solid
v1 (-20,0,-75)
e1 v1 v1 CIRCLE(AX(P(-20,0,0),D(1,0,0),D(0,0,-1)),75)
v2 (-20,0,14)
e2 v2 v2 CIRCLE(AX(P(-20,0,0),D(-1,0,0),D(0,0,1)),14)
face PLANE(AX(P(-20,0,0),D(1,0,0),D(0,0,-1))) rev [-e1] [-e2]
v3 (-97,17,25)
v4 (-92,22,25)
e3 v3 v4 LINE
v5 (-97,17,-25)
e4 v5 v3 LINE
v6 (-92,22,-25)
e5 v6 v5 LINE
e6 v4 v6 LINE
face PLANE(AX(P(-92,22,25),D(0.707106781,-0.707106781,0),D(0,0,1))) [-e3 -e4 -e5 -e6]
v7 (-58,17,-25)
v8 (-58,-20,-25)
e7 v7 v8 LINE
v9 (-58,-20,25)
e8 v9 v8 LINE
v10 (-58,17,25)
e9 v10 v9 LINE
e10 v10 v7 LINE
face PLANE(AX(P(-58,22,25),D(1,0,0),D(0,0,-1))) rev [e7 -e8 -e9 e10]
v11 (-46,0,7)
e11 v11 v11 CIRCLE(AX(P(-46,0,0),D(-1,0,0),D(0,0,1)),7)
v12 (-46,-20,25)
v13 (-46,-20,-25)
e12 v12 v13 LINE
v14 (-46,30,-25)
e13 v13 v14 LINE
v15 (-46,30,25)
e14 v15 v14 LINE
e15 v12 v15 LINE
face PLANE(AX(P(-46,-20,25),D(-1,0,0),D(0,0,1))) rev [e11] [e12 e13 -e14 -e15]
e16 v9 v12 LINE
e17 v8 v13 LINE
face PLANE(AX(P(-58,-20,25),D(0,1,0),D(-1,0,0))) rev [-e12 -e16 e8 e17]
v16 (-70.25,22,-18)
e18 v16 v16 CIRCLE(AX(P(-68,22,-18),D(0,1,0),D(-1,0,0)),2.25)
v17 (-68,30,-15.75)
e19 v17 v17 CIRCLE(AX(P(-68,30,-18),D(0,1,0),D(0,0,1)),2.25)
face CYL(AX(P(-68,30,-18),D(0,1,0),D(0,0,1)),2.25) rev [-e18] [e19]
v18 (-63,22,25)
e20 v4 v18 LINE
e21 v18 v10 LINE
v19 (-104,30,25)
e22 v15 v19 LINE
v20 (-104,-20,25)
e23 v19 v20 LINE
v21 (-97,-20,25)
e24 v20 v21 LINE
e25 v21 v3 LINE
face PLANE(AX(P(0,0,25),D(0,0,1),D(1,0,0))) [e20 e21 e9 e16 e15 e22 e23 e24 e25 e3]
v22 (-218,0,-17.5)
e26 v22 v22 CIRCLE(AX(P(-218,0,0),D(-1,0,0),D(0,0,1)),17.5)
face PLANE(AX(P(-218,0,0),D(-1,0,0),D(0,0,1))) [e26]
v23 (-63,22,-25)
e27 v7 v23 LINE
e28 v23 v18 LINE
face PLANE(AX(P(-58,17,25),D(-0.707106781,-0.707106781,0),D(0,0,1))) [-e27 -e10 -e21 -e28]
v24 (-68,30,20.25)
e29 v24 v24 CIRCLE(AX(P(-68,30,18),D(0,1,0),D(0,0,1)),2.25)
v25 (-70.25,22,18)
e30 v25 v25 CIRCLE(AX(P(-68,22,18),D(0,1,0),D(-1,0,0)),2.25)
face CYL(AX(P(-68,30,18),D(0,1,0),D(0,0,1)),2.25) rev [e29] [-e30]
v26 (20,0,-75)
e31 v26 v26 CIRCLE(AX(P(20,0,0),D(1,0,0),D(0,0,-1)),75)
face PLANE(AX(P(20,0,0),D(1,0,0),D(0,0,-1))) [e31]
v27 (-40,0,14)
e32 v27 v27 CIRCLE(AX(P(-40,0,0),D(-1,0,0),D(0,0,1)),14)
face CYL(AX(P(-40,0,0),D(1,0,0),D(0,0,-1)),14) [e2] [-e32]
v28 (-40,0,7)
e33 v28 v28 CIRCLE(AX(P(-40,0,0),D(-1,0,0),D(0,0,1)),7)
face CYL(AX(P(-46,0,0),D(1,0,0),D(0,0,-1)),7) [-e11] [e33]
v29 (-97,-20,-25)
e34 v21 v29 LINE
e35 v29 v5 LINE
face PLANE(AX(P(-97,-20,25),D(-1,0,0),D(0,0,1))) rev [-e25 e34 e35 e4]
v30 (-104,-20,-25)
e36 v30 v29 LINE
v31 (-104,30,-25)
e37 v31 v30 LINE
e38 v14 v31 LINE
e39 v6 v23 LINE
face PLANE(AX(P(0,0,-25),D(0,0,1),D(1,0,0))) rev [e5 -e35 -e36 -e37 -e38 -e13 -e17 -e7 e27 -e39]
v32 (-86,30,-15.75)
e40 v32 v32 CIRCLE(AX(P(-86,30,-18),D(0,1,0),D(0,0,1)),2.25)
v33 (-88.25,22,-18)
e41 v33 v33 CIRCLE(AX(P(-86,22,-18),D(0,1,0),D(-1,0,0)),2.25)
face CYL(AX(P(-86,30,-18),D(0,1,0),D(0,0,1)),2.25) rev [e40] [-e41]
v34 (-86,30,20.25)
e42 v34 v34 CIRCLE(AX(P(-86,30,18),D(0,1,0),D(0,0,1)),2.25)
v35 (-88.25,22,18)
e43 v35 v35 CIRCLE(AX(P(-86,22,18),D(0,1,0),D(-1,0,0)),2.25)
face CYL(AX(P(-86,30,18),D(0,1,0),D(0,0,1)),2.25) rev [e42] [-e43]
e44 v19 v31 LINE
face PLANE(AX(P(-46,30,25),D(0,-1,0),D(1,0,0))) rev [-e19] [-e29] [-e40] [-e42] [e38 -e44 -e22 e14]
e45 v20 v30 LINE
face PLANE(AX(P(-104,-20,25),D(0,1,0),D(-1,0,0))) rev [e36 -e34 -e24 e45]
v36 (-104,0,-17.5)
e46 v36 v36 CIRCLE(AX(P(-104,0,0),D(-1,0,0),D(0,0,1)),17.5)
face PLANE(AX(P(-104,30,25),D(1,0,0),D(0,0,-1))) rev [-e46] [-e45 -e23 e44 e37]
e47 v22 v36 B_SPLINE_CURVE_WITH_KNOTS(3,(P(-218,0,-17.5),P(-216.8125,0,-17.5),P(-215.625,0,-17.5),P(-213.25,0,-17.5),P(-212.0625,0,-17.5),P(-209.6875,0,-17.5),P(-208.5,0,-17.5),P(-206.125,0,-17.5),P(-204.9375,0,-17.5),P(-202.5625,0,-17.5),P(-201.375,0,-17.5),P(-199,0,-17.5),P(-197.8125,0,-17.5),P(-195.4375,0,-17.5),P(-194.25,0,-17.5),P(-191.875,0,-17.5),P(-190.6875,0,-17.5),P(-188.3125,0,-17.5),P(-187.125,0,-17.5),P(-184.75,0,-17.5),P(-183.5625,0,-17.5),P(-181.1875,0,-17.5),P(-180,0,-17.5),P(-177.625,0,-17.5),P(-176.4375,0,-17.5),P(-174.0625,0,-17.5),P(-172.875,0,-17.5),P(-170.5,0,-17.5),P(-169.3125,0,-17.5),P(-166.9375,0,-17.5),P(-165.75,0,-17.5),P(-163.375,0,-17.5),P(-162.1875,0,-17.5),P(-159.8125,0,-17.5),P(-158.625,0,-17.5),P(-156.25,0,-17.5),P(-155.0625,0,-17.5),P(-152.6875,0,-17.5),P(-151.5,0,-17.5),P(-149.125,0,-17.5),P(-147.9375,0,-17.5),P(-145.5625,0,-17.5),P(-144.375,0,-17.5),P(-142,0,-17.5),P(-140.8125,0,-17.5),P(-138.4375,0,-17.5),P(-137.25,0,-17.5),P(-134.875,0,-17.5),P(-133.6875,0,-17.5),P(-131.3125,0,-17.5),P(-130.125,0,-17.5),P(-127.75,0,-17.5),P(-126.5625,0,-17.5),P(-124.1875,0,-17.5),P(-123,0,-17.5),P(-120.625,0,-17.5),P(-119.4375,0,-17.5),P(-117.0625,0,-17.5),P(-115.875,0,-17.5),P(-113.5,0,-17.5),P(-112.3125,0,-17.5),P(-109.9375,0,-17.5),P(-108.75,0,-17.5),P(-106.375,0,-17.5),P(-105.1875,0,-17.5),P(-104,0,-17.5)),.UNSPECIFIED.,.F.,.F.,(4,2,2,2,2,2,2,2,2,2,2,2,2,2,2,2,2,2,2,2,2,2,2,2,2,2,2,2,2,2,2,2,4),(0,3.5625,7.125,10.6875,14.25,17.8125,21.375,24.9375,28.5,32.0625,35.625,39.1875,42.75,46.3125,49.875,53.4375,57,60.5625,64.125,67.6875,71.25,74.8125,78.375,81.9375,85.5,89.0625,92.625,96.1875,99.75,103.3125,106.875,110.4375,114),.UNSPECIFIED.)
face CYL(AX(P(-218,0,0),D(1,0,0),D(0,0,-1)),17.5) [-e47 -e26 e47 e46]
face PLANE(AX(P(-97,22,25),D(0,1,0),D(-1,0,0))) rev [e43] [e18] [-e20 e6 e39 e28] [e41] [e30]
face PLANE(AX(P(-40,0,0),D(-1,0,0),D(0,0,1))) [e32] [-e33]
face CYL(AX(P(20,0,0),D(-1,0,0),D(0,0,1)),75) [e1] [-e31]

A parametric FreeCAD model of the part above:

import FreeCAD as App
import Part
import Sketcher

V = App.Vector


def edges_at(feature, points):
    """Names of the edges that pass closest to the given points."""
    edges = feature.Shape.Edges
    near = lambda p: min(range(len(edges)), key=lambda i: edges[i].distToShape(Part.Vertex(*p))[0])
    return sorted({f"Edge{near(p) + 1}" for p in points})

doc = App.newDocument("Part")
params = doc.addObject("Spreadsheet::Sheet", "Params")
for row, (alias, value) in enumerate([
    ("sketch1_diameter", "150 mm"),
    ("pad1_length", "40 mm"),
    ("sketch2_diameter", "28 mm"),
    ("pad2_length", "20 mm"),
    ("sketch3_diameter", "14 mm"),
    ("pad3_length", "6 mm"),
    ("sketch4_width", "58 mm"),
    ("sketch4_width2", "7 mm"),
    ("sketch4_width3", "39 mm"),
    ("sketch4_height", "50 mm"),
    ("sketch4_height2", "42 mm"),
    ("pad4_length", "50 mm"),
    ("chamfer_size", "5 mm"),
    ("sketch5_diameter", "35 mm"),
    ("pad5_length", "114 mm"),
    ("sketch6_diameter", "4.5 mm"),
    ("hole_diameter", "4.5 mm"),
], start=1):
    params.set(f"A{row}", alias)
    params.set(f"B{row}", "=" + value)
    params.setAlias(f"B{row}", alias)

body = doc.addObject("PartDesign::Body", "Body")

sketch1 = doc.addObject("Sketcher::SketchObject", "Sketch")
body.addObject(sketch1)
sketch1.AttachmentSupport = (doc.YZ_Plane, [""])
sketch1.MapMode = "FlatFace"
sketch1.addGeometry(Part.Circle(V(0, 0, 0), V(0, 0, 1), 75), False)
sketch1.addConstraint([
    Sketcher.Constraint("Coincident", 0, 3, -1, 1),
    Sketcher.Constraint("Diameter", 0, 150.0),
])
sketch1.setExpression("Constraints[1]", "Params.sketch1_diameter")
pad1 = doc.addObject("PartDesign::Pad", "Pad")
body.addObject(pad1)
pad1.Profile = sketch1
pad1.setExpression("Length", "Params.pad1_length")
pad1.Midplane = True

sketch2 = doc.addObject("Sketcher::SketchObject", "Sketch001")
body.addObject(sketch2)
sketch2.AttachmentSupport = (doc.YZ_Plane, [""])
sketch2.MapMode = "FlatFace"
sketch2.AttachmentOffset = App.Placement(V(0, 0, -20), App.Rotation())
sketch2.addGeometry(Part.Circle(V(0, 0, 0), V(0, 0, 1), 14), False)
sketch2.addConstraint([
    Sketcher.Constraint("Coincident", 0, 3, -1, 1),
    Sketcher.Constraint("Diameter", 0, 28.0),
])
sketch2.setExpression("Constraints[1]", "Params.sketch2_diameter")
pad2 = doc.addObject("PartDesign::Pad", "Pad001")
body.addObject(pad2)
pad2.Profile = sketch2
pad2.setExpression("Length", "Params.pad2_length")
pad2.Reversed = True

sketch3 = doc.addObject("Sketcher::SketchObject", "Sketch002")
body.addObject(sketch3)
sketch3.AttachmentSupport = (doc.YZ_Plane, [""])
sketch3.MapMode = "FlatFace"
sketch3.AttachmentOffset = App.Placement(V(0, 0, -40), App.Rotation())
sketch3.addGeometry(Part.Circle(V(0, 0, 0), V(0, 0, 1), 7), False)
sketch3.addConstraint([
    Sketcher.Constraint("Coincident", 0, 3, -1, 1),
    Sketcher.Constraint("Diameter", 0, 14.0),
])
sketch3.setExpression("Constraints[1]", "Params.sketch3_diameter")
pad3 = doc.addObject("PartDesign::Pad", "Pad002")
body.addObject(pad3)
pad3.Profile = sketch3
pad3.setExpression("Length", "Params.pad3_length")
pad3.Reversed = True

sketch4 = doc.addObject("Sketcher::SketchObject", "Sketch003")
body.addObject(sketch4)
sketch4.AttachmentSupport = (doc.XY_Plane, [""])
sketch4.MapMode = "FlatFace"
sketch4.addGeometry([
    Part.LineSegment(V(-46, -20, 0), V(-46, 30, 0)),
    Part.LineSegment(V(-46, 30, 0), V(-104, 30, 0)),
    Part.LineSegment(V(-104, 30, 0), V(-104, -20, 0)),
    Part.LineSegment(V(-104, -20, 0), V(-97, -20, 0)),
    Part.LineSegment(V(-97, -20, 0), V(-97, 22, 0)),
    Part.LineSegment(V(-97, 22, 0), V(-58, 22, 0)),
    Part.LineSegment(V(-58, 22, 0), V(-58, -20, 0)),
    Part.LineSegment(V(-58, -20, 0), V(-46, -20, 0)),
], False)
sketch4.addConstraint([
    Sketcher.Constraint("Coincident", 0, 2, 1, 1),
    Sketcher.Constraint("Coincident", 1, 2, 2, 1),
    Sketcher.Constraint("Coincident", 2, 2, 3, 1),
    Sketcher.Constraint("Coincident", 3, 2, 4, 1),
    Sketcher.Constraint("Coincident", 4, 2, 5, 1),
    Sketcher.Constraint("Coincident", 5, 2, 6, 1),
    Sketcher.Constraint("Coincident", 6, 2, 7, 1),
    Sketcher.Constraint("Coincident", 7, 2, 0, 1),
    Sketcher.Constraint("Vertical", 0),
    Sketcher.Constraint("Horizontal", 1),
    Sketcher.Constraint("Vertical", 2),
    Sketcher.Constraint("Horizontal", 3),
    Sketcher.Constraint("Vertical", 4),
    Sketcher.Constraint("Horizontal", 5),
    Sketcher.Constraint("Vertical", 6),
    Sketcher.Constraint("Horizontal", 7),
    Sketcher.Constraint("Horizontal", 3, 2, 6, 2),
    Sketcher.Constraint("DistanceX", 1, 2, 1, 1, 58.0),
    Sketcher.Constraint("DistanceX", 3, 1, 3, 2, 7.0),
    Sketcher.Constraint("DistanceX", 5, 1, 5, 2, 39.0),
    Sketcher.Constraint("DistanceY", 0, 1, 0, 2, 50.0),
    Sketcher.Constraint("DistanceY", 4, 1, 4, 2, 42.0),
    Sketcher.Constraint("DistanceX", 0, 2, -1, 1, 46.0),
    Sketcher.Constraint("DistanceY", -1, 1, 0, 2, 30.0),
])
sketch4.setExpression("Constraints[17]", "Params.sketch4_width")
sketch4.setExpression("Constraints[18]", "Params.sketch4_width2")
sketch4.setExpression("Constraints[19]", "Params.sketch4_width3")
sketch4.setExpression("Constraints[20]", "Params.sketch4_height")
sketch4.setExpression("Constraints[21]", "Params.sketch4_height2")
pad4 = doc.addObject("PartDesign::Pad", "Pad003")
body.addObject(pad4)
pad4.Profile = sketch4
pad4.setExpression("Length", "Params.pad4_length")
pad4.Midplane = True
doc.recompute()

chamfer = doc.addObject("PartDesign::Chamfer", "Chamfer")
body.addObject(chamfer)
chamfer.Base = (pad4, edges_at(pad4, [(-97, 22, 0), (-58, 22, 0)]))
chamfer.setExpression("Size", "Params.chamfer_size")

sketch5 = doc.addObject("Sketcher::SketchObject", "Sketch004")
body.addObject(sketch5)
sketch5.AttachmentSupport = (doc.YZ_Plane, [""])
sketch5.MapMode = "FlatFace"
sketch5.AttachmentOffset = App.Placement(V(0, 0, -104), App.Rotation())
sketch5.addGeometry(Part.Circle(V(0, 0, 0), V(0, 0, 1), 18), False)
sketch5.addConstraint([
    Sketcher.Constraint("Coincident", 0, 3, -1, 1),
    Sketcher.Constraint("Diameter", 0, 35.0),
])
sketch5.setExpression("Constraints[1]", "Params.sketch5_diameter")
pad5 = doc.addObject("PartDesign::Pad", "Pad004")
body.addObject(pad5)
pad5.Profile = sketch5
pad5.setExpression("Length", "Params.pad5_length")
pad5.Reversed = True

sketch6 = doc.addObject("Sketcher::SketchObject", "Sketch005")
body.addObject(sketch6)
sketch6.AttachmentSupport = (doc.XZ_Plane, [""])
sketch6.MapMode = "FlatFace"
sketch6.AttachmentOffset = App.Placement(V(0, 0, -30), App.Rotation())
sketch6.addGeometry([
    Part.Circle(V(-68, -18, 0), V(0, 0, 1), 2.2),
    Part.Circle(V(-86, -18, 0), V(0, 0, 1), 2.2),
    Part.Circle(V(-68, 18, 0), V(0, 0, 1), 2.2),
    Part.Circle(V(-86, 18, 0), V(0, 0, 1), 2.2),
], False)
sketch6.addConstraint([
    Sketcher.Constraint("Equal", 0, 1),
    Sketcher.Constraint("Equal", 1, 2),
    Sketcher.Constraint("Equal", 2, 3),
    Sketcher.Constraint("Symmetric", 0, 3, 2, 3, -1),
    Sketcher.Constraint("Symmetric", 1, 3, 3, 3, -1),
    Sketcher.Constraint("Horizontal", 0, 3, 1, 3),
    Sketcher.Constraint("Diameter", 0, 4.5),
    Sketcher.Constraint("DistanceX", 0, 3, -1, 1, 68.0),
    Sketcher.Constraint("DistanceY", 0, 3, -1, 1, 18.0),
    Sketcher.Constraint("DistanceX", 1, 3, -1, 1, 86.0),
])
sketch6.setExpression("Constraints[6]", "Params.sketch6_diameter")
doc.recompute()
hole = doc.addObject("PartDesign::Hole", "Hole")
body.addObject(hole)
hole.Profile = sketch6
hole.ThreadType = "None"
hole.setExpression("Diameter", "Params.hole_diameter")
hole.DepthType = "ThroughAll"
hole.Reversed = True

doc.recompute()
